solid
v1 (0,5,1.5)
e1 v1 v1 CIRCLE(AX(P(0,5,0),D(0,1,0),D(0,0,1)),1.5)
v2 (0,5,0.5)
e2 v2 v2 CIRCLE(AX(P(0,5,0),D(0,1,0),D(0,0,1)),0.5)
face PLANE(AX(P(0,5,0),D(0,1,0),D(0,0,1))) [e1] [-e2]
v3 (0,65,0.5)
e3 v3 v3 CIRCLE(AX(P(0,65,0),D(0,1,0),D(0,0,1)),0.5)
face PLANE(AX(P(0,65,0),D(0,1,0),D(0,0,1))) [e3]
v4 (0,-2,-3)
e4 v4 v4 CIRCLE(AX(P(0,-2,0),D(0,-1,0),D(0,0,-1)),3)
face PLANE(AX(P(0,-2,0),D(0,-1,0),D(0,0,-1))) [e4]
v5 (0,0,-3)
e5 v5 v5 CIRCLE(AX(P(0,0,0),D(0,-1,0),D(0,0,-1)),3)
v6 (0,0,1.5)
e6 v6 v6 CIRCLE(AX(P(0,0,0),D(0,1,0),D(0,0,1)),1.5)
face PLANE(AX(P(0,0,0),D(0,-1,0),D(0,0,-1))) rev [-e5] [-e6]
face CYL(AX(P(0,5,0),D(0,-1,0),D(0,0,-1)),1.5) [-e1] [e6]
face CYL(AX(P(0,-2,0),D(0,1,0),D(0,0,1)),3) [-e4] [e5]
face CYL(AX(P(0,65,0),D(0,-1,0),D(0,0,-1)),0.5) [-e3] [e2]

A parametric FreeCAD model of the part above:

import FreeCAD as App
import Part
import Sketcher

V = App.Vector

doc = App.newDocument("Part")
body = doc.addObject("PartDesign::Body", "Body")

sketch1 = doc.addObject("Sketcher::SketchObject", "Sketch")
body.addObject(sketch1)
sketch1.AttachmentSupport = (doc.XZ_Plane, [""])
sketch1.MapMode = "FlatFace"
sketch1.addGeometry(Part.Circle(V(0, 0, 0), V(0, 0, 1), 1.5), False)
sketch1.addConstraint([
    Sketcher.Constraint("Coincident", 0, 3, -1, 1),
    Sketcher.Constraint("Diameter", 0, 3.0),
])
pad1 = doc.addObject("PartDesign::Pad", "Pad")
body.addObject(pad1)
pad1.Profile = sketch1
pad1.Length = 5
pad1.Reversed = True

sketch2 = doc.addObject("Sketcher::SketchObject", "Sketch001")
body.addObject(sketch2)
sketch2.AttachmentSupport = (doc.XZ_Plane, [""])
sketch2.MapMode = "FlatFace"
sketch2.AttachmentOffset = App.Placement(V(0, 0, -5), App.Rotation())
sketch2.addGeometry(Part.Circle(V(0, 0, 0), V(0, 0, 1), 0.5), False)
sketch2.addConstraint([
    Sketcher.Constraint("Coincident", 0, 3, -1, 1),
    Sketcher.Constraint("Diameter", 0, 1.0),
])
pad2 = doc.addObject("PartDesign::Pad", "Pad001")
body.addObject(pad2)
pad2.Profile = sketch2
pad2.Length = 60
pad2.Reversed = True

sketch3 = doc.addObject("Sketcher::SketchObject", "Sketch002")
body.addObject(sketch3)
sketch3.AttachmentSupport = (doc.XZ_Plane, [""])
sketch3.MapMode = "FlatFace"
sketch3.addGeometry(Part.Circle(V(0, 0, 0), V(0, 0, 1), 3), False)
sketch3.addConstraint([
    Sketcher.Constraint("Coincident", 0, 3, -1, 1),
    Sketcher.Constraint("Diameter", 0, 6.0),
])
pad3 = doc.addObject("PartDesign::Pad", "Pad002")
body.addObject(pad3)
pad3.Profile = sketch3
pad3.Length = 2

doc.recompute()
